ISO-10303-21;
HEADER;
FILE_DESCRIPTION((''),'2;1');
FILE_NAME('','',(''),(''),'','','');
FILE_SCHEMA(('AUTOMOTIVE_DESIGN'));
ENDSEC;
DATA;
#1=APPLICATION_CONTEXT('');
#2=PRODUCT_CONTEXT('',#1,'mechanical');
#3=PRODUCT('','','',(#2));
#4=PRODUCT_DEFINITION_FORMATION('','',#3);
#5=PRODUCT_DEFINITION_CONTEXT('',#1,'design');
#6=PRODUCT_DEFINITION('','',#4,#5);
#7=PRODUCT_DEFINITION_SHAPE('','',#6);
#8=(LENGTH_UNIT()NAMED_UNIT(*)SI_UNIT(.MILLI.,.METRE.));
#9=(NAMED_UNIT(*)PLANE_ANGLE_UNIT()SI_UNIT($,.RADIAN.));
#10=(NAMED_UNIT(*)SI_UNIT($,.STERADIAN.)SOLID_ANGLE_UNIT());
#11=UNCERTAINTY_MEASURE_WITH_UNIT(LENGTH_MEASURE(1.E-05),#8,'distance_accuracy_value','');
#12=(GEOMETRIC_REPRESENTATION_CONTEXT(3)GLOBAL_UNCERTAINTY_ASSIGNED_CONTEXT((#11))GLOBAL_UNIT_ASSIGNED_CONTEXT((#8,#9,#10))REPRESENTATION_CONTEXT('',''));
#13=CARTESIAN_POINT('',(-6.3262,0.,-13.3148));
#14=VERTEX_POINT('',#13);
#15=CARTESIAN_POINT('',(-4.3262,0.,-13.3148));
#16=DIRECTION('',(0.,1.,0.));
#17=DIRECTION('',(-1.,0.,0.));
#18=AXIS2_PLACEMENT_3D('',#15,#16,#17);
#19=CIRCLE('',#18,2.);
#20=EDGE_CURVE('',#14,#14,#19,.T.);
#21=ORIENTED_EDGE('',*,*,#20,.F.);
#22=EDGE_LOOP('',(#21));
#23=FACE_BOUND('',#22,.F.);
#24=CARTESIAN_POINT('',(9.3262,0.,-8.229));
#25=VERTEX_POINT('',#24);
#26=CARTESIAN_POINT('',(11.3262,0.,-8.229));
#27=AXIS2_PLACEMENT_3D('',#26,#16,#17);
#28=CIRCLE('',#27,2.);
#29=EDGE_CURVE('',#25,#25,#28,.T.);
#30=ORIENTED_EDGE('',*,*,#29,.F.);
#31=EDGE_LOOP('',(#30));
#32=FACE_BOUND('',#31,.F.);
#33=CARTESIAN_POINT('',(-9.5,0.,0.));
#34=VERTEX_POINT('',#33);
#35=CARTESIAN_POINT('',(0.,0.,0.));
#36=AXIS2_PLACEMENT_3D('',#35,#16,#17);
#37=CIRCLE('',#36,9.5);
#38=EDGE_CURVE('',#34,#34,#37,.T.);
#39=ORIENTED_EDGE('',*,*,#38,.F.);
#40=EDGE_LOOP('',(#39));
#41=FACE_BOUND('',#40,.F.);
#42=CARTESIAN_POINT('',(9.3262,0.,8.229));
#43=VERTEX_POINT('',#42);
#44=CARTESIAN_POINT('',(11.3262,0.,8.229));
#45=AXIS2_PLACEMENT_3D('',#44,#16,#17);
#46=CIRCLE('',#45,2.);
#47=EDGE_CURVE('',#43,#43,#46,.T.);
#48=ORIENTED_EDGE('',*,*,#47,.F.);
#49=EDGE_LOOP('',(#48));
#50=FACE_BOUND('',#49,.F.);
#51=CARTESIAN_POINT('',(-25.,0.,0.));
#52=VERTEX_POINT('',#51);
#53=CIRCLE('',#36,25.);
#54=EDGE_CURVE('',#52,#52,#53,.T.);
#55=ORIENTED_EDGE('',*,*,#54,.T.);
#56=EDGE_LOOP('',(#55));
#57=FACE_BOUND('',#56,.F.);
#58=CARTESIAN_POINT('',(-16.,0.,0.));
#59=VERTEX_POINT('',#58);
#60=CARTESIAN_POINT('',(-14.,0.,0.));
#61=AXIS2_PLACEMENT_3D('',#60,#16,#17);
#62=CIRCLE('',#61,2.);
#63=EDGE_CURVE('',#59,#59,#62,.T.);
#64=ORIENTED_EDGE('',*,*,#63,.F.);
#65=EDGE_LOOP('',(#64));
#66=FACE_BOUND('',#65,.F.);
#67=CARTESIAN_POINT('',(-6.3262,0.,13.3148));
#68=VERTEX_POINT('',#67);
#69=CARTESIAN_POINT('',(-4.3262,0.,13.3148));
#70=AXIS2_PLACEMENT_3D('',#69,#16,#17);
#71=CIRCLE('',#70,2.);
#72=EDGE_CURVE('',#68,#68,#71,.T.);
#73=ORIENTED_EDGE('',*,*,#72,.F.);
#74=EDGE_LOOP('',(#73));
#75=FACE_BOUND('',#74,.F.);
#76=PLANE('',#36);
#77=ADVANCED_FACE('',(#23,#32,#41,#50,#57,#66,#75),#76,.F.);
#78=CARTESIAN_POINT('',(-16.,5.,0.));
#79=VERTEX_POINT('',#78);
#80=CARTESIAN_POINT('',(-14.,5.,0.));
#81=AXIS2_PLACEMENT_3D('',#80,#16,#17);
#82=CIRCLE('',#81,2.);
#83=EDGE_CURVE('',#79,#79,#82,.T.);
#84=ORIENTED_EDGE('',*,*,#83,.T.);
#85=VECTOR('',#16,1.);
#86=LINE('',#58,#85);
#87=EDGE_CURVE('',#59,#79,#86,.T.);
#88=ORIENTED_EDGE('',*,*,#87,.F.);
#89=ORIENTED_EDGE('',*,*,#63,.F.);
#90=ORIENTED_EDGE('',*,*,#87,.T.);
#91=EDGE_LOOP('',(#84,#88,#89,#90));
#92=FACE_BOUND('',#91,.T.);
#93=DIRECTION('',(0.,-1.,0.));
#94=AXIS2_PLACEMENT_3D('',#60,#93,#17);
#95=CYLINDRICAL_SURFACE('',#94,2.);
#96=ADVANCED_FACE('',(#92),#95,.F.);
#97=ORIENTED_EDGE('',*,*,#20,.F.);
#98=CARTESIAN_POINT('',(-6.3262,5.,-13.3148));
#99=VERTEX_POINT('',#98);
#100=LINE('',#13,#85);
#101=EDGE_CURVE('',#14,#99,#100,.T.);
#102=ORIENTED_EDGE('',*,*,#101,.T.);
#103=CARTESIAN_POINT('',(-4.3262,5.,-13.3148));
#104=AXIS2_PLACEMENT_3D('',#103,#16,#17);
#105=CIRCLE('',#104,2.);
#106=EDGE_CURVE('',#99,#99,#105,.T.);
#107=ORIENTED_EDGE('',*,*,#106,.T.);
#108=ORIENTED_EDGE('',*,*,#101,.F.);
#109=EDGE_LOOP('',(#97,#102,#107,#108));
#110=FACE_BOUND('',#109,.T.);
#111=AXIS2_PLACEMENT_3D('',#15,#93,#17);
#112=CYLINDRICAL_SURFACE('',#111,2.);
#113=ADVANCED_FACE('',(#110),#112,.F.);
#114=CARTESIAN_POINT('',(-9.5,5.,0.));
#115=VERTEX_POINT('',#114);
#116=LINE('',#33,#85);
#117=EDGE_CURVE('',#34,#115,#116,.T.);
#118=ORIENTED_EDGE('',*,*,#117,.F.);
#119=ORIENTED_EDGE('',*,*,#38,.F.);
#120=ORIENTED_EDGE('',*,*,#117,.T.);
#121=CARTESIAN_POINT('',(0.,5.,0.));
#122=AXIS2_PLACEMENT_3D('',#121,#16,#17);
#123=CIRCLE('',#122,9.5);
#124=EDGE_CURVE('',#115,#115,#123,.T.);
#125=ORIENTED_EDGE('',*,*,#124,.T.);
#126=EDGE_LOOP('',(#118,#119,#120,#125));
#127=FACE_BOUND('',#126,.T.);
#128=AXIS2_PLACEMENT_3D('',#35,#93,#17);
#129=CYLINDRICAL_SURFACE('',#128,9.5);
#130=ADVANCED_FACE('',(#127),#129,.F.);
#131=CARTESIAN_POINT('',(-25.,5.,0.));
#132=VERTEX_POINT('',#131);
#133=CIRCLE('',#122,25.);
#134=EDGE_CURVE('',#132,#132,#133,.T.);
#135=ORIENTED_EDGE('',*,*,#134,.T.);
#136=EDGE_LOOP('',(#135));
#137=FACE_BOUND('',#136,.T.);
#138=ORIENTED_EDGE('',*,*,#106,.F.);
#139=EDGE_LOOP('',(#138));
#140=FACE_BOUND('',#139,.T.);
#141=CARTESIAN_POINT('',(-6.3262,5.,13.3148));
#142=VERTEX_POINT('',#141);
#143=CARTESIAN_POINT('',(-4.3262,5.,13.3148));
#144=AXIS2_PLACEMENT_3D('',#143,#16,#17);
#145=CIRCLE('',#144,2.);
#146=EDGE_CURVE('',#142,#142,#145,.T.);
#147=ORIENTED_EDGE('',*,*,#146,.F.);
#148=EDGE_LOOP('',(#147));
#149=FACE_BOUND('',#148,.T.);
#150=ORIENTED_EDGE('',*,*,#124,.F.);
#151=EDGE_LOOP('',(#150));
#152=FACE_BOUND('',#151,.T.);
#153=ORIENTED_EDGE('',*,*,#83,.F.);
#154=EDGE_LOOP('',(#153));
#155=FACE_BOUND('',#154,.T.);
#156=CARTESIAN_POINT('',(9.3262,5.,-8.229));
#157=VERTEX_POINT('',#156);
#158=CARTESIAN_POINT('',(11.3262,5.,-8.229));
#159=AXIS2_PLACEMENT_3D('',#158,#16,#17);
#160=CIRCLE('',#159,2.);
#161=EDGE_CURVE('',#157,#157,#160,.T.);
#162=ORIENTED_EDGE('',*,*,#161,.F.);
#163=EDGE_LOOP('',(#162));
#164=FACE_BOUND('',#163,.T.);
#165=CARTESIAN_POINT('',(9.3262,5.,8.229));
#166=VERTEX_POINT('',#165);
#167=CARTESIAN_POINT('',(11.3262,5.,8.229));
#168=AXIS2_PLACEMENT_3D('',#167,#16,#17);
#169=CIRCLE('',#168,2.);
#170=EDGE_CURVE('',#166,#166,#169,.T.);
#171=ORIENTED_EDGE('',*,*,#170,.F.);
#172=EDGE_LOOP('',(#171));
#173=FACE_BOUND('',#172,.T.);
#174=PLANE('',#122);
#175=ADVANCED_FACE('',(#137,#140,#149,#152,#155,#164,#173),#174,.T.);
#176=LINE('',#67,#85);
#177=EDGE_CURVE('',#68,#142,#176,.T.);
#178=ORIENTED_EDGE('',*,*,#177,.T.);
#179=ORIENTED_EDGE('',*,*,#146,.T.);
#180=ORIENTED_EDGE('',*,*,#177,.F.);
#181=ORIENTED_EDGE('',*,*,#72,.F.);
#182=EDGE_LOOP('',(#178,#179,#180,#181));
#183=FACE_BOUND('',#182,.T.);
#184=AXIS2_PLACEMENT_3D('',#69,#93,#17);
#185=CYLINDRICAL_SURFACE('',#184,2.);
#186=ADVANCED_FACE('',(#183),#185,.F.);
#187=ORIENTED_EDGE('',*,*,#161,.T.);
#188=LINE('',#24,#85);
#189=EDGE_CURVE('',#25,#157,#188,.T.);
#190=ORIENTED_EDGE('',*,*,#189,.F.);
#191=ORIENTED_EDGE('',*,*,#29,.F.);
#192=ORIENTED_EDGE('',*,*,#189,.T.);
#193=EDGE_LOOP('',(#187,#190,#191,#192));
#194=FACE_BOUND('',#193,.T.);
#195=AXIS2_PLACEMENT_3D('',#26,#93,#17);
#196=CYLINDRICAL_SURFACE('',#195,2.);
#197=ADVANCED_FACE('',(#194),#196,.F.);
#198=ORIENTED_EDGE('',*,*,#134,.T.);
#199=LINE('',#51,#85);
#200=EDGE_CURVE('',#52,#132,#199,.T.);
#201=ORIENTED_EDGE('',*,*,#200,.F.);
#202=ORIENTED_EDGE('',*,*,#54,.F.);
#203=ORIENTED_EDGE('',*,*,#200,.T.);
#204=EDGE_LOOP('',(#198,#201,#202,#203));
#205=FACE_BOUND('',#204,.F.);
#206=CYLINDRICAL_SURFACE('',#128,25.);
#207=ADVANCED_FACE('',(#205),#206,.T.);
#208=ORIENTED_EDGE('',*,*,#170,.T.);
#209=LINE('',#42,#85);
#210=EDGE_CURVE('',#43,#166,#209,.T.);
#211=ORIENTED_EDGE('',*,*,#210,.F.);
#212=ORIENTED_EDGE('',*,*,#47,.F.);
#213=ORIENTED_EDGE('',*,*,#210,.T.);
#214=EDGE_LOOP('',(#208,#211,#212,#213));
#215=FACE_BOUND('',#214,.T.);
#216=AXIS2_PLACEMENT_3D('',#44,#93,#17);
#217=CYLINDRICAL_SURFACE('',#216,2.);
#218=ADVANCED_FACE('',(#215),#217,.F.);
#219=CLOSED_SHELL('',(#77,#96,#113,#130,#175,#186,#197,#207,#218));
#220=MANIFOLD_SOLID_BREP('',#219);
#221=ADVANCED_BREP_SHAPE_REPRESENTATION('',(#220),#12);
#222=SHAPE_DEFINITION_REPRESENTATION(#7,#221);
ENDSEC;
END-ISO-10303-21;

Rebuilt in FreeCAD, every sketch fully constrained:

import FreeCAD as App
import Part
import Sketcher

V = App.Vector
Q = App.Units.Quantity

doc = App.newDocument("Part")
params = doc.addObject("Spreadsheet::Sheet", "Params")
for row, (alias, value) in enumerate([
    ("sketch1_diameter", "50 mm"),
    ("sketch1_diameter2", "4 mm"),
    ("sketch1_diameter3", "19 mm"),
    ("pad1_length", "5 mm"),
], start=1):
    params.set(f"A{row}", alias)
    params.set(f"B{row}", "=" + value)
    params.setAlias(f"B{row}", alias)

body = doc.addObject("PartDesign::Body", "Body")

# Sketch on XZ plane
sketch1 = body.newObject("Sketcher::SketchObject", "Sketch")
sketch1.AttachmentSupport = (doc.getObject("XZ_Plane"), [""])
sketch1.MapMode = "FlatFace"
sketch1.addGeometry([
    Part.Circle(V(0, 0, 0), V(0, 0, 1), 25),  # 0
    Part.Circle(V(11.3, -8.2, 0), V(0, 0, 1), 2),  # 1
    Part.Circle(V(-4.3, -13.3, 0), V(0, 0, 1), 2),  # 2
    Part.Circle(V(11.3, 8.2, 0), V(0, 0, 1), 2),  # 3
    Part.Circle(V(0, 0, 0), V(0, 0, 1), 9.5),  # 4
    Part.Circle(V(-14, 0, 0), V(0, 0, 1), 2),  # 5
    Part.Circle(V(-4.3, 13.3, 0), V(0, 0, 1), 2),  # 6
], False)
sketch1.addConstraint([
    Sketcher.Constraint("Coincident", 0, 3, -1, 1),
    Sketcher.Constraint("Coincident", 4, 3, -1, 1),
    Sketcher.Constraint("Equal", 1, 2),
    Sketcher.Constraint("Equal", 2, 3),
    Sketcher.Constraint("Equal", 3, 5),
    Sketcher.Constraint("Equal", 5, 6),
    Sketcher.Constraint("Symmetric", 1, 3, 3, 3, -1),
    Sketcher.Constraint("Symmetric", 2, 3, 6, 3, -1),
    Sketcher.Constraint("PointOnObject", 5, 3, -1),
    Sketcher.Constraint("Diameter", 0, Q("50 mm")),
    Sketcher.Constraint("Diameter", 1, Q("4 mm")),
    Sketcher.Constraint("Diameter", 4, Q("19 mm")),
    Sketcher.Constraint("DistanceX", 5, 3, -1, 1, Q("14 mm")),
    Sketcher.Constraint("DistanceY", 1, 3, -1, 1, Q("8.229 mm")),
    Sketcher.Constraint("DistanceX", -1, 1, 1, 3, Q("11.3262 mm")),
    Sketcher.Constraint("DistanceX", 2, 3, -1, 1, Q("4.3262 mm")),
    Sketcher.Constraint("DistanceY", 2, 3, -1, 1, Q("13.3148 mm")),
])
sketch1.setExpression("Constraints[9]", "Params.sketch1_diameter")
sketch1.setExpression("Constraints[10]", "Params.sketch1_diameter2")
sketch1.setExpression("Constraints[11]", "Params.sketch1_diameter3")
pad1 = body.newObject("PartDesign::Pad", "Pad")
pad1.Profile = sketch1
pad1.setExpression("Length", "Params.pad1_length")
pad1.Reversed = True

doc.recompute()
